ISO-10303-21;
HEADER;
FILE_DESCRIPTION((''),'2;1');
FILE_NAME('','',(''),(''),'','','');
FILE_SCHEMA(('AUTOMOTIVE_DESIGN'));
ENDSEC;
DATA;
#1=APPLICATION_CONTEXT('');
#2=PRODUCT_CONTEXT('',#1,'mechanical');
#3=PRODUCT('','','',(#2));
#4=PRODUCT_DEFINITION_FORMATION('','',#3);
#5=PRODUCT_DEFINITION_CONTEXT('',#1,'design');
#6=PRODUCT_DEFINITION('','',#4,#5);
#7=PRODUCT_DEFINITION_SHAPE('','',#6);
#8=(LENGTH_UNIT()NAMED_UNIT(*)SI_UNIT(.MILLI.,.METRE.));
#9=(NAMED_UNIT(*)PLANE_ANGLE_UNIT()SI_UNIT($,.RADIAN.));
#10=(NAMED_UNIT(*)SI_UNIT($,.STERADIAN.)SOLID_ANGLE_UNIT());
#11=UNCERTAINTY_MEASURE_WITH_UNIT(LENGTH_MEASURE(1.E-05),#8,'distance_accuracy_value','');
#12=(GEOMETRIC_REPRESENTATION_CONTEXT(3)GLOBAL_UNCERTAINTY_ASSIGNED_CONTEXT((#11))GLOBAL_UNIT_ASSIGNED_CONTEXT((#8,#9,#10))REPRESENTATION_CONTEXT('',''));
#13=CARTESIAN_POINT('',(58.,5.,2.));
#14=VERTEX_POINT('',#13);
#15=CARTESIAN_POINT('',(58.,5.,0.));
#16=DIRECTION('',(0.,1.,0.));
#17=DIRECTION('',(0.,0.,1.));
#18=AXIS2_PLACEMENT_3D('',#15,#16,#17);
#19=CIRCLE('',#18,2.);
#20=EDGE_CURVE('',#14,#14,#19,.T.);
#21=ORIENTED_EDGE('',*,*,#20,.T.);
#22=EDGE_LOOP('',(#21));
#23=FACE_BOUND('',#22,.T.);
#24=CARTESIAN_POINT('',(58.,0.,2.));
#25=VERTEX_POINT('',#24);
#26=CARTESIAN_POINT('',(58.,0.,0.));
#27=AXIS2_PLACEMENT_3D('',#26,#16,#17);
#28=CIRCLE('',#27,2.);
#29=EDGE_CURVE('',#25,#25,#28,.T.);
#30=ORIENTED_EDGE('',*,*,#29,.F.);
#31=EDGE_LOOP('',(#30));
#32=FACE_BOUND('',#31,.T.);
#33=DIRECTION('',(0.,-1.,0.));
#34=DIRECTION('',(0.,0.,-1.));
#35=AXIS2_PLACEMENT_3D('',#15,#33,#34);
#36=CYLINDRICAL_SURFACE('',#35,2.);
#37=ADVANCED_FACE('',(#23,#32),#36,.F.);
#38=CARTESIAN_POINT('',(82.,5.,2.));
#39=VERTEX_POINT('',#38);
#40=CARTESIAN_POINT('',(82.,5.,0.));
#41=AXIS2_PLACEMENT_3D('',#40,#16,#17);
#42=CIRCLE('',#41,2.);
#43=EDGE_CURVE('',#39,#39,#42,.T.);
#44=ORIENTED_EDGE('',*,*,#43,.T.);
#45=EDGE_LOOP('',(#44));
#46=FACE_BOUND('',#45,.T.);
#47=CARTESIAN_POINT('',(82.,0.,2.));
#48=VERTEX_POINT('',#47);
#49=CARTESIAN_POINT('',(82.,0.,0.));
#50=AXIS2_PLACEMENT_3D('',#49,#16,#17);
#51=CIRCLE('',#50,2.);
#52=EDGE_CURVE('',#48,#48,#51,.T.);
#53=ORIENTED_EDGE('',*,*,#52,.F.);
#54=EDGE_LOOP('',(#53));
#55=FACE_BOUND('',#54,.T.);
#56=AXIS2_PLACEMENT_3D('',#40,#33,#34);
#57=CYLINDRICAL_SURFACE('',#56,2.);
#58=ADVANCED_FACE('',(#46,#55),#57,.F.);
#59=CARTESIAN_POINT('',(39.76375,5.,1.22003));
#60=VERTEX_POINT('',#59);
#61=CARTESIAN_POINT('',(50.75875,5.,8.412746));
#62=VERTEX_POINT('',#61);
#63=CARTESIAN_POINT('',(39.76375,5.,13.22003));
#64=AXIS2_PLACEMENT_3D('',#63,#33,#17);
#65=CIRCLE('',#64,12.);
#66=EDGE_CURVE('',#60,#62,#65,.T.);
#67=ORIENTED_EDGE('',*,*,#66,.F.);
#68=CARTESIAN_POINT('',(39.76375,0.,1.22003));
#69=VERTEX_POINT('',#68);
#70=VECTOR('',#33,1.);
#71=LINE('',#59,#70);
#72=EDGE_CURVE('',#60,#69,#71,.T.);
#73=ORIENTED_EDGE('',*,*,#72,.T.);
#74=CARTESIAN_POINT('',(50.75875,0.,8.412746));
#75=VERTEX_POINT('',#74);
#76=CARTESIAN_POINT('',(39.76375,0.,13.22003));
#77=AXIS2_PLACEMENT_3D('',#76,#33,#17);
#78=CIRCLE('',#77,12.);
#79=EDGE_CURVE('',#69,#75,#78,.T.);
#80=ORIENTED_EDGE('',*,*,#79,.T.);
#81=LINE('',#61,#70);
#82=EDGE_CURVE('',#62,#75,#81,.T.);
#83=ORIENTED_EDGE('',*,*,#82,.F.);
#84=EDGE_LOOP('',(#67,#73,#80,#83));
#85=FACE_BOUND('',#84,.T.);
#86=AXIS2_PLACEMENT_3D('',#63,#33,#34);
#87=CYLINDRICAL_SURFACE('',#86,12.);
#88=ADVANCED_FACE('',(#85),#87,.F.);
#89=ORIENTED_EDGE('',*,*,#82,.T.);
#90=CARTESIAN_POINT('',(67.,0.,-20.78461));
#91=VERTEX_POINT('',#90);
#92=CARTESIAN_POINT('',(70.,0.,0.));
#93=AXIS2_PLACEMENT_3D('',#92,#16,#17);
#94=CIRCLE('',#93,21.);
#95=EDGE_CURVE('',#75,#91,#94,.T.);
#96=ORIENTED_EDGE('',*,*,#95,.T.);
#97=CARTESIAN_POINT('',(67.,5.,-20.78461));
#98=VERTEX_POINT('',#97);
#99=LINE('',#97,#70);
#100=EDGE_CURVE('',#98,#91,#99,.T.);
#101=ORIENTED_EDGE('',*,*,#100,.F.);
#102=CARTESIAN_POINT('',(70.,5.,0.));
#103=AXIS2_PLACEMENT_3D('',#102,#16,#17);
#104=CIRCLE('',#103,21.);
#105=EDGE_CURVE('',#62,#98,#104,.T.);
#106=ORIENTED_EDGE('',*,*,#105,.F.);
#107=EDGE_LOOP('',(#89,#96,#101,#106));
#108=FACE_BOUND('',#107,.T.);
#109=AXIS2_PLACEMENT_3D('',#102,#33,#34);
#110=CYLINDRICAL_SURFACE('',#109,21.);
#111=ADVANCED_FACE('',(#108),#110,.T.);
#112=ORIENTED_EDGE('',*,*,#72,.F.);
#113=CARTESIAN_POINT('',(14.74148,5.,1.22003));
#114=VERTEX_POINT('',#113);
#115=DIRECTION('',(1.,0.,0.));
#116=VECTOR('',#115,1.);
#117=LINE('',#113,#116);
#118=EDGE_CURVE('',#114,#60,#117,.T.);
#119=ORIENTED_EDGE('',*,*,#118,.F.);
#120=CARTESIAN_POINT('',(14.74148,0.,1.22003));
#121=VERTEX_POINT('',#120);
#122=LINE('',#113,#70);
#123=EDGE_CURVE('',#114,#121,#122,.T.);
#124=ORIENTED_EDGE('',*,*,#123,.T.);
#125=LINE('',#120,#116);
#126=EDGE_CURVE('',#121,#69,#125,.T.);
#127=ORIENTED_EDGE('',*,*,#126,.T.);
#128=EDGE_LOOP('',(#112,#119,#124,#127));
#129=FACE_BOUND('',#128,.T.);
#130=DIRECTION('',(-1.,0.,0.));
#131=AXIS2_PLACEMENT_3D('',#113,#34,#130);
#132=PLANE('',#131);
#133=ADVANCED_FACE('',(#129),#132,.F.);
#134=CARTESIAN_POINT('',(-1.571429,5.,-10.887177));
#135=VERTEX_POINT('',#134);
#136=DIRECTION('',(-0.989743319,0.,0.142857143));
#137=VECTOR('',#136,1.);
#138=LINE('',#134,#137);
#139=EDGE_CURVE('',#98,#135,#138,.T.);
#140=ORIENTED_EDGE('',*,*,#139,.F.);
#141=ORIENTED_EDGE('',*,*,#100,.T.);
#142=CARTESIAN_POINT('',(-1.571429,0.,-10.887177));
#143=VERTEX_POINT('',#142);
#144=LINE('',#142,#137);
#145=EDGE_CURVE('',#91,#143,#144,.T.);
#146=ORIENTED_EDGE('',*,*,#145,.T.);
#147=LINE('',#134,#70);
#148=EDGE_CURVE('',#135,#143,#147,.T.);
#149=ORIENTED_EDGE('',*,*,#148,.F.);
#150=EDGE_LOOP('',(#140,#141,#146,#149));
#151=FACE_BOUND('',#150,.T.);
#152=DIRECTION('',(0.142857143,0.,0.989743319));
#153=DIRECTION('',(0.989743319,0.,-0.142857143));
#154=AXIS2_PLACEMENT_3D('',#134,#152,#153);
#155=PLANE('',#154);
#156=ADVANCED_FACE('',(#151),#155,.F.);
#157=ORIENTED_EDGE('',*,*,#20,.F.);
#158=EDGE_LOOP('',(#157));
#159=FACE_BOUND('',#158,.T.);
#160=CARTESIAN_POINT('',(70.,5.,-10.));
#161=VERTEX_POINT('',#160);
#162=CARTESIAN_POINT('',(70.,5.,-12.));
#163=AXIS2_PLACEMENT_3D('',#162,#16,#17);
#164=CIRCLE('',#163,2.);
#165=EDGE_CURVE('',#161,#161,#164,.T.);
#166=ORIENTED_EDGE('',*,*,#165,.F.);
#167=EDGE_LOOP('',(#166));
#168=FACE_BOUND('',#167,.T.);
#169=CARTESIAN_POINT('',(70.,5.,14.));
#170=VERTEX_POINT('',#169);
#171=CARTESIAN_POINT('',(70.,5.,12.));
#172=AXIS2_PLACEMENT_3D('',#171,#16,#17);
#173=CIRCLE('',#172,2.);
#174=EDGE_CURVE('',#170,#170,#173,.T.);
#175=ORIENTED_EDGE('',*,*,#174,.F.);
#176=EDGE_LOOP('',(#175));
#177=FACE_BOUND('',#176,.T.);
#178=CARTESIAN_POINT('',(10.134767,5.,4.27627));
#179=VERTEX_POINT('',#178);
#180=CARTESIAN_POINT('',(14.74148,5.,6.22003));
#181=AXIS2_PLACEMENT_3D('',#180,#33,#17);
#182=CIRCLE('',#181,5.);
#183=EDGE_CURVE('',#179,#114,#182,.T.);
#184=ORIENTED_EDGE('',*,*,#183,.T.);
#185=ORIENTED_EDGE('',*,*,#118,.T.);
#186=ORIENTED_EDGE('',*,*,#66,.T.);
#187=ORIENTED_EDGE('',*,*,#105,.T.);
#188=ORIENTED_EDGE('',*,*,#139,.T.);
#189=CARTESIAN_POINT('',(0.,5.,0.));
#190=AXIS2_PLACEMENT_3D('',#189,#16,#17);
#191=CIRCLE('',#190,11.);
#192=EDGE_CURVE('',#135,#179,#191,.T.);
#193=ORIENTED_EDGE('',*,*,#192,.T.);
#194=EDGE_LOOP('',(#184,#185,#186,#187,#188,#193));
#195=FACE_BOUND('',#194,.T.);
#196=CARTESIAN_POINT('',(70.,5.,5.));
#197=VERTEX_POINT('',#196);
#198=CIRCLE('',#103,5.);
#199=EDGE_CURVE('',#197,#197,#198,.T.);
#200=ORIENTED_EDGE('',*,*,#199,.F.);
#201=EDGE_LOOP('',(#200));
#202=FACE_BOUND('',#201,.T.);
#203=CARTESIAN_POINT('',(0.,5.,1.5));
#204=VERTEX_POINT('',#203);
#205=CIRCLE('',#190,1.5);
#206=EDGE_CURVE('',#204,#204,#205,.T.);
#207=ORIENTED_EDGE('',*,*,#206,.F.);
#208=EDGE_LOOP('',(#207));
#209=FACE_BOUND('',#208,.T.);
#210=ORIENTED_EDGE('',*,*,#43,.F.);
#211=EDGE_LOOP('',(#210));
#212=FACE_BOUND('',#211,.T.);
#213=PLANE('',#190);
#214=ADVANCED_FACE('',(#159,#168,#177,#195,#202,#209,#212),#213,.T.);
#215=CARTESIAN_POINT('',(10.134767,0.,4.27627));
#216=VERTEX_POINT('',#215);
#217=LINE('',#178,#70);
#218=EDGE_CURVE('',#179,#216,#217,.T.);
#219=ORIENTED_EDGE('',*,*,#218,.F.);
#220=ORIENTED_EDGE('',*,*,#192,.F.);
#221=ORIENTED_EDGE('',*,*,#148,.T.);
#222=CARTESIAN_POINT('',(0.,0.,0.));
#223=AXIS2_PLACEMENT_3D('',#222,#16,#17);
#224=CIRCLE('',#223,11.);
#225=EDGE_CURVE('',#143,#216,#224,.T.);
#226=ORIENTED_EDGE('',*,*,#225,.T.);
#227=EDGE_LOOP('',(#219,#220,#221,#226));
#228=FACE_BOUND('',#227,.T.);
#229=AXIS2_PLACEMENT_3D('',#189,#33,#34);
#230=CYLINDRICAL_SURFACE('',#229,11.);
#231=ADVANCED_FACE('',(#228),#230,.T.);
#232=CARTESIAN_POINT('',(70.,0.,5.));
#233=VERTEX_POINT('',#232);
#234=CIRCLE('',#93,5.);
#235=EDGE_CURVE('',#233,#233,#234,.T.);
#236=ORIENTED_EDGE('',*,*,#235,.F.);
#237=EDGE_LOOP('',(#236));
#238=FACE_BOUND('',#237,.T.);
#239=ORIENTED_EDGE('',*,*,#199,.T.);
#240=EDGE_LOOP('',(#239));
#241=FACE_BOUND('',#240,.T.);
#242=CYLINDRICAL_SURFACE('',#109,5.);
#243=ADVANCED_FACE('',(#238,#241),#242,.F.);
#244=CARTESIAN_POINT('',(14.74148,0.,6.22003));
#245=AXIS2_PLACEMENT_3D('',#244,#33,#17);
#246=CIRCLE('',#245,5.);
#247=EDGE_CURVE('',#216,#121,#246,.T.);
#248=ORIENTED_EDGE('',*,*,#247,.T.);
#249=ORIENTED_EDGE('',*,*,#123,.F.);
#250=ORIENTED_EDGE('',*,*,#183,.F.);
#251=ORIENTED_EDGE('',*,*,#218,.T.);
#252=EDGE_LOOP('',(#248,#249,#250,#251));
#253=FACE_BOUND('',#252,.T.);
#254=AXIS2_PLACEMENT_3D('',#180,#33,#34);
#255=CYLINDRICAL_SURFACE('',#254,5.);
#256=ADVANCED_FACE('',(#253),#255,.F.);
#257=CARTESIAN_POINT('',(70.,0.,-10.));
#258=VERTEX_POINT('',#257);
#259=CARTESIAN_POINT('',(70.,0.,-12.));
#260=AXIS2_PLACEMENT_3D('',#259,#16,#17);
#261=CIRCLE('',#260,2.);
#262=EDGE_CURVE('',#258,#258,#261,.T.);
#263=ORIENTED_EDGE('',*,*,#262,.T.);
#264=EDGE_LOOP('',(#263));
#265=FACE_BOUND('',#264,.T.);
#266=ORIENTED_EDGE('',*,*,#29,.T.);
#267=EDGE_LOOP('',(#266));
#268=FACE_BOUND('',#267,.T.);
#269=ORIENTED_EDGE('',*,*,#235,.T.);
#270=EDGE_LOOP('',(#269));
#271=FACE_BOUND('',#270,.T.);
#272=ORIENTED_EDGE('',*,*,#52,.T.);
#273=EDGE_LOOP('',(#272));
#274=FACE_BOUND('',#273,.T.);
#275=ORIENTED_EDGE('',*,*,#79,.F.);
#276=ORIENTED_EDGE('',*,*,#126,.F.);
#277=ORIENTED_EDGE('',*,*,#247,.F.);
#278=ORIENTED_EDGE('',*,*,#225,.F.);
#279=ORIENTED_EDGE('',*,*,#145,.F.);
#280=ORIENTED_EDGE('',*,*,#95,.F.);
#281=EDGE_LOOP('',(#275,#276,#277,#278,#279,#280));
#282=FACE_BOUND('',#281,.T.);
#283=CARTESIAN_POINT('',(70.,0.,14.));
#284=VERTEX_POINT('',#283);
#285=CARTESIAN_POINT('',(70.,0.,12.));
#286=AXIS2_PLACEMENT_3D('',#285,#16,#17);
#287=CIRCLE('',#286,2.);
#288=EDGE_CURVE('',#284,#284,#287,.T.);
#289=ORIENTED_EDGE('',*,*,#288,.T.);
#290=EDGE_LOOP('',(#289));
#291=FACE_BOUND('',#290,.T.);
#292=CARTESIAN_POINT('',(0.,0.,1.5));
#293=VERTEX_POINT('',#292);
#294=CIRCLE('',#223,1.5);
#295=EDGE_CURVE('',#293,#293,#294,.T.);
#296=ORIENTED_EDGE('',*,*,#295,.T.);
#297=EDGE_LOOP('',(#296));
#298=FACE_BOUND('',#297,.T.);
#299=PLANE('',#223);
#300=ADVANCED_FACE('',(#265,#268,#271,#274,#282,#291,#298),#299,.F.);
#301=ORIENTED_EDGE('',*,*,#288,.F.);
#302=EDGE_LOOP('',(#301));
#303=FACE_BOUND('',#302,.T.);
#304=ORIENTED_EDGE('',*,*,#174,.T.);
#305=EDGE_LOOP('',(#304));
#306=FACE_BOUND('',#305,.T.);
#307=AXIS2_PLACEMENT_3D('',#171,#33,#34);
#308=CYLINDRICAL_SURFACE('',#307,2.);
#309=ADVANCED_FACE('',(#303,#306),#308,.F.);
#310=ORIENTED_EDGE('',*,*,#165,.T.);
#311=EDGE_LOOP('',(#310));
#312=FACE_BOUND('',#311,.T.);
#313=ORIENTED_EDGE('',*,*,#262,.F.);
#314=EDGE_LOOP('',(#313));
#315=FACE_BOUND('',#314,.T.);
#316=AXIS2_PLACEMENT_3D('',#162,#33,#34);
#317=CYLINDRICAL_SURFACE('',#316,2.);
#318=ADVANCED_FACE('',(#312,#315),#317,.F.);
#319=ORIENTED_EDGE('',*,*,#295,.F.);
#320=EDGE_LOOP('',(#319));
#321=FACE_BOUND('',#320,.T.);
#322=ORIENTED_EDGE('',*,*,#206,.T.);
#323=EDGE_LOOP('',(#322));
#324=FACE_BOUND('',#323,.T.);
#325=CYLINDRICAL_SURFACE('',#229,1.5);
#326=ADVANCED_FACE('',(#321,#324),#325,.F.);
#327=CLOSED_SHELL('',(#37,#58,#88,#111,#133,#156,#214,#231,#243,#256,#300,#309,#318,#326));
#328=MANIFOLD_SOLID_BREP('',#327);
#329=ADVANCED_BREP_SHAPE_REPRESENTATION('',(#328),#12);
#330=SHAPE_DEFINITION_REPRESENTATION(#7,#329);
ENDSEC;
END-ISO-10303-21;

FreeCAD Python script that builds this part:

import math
import FreeCAD as App
import Part
import Sketcher

V = App.Vector

doc = App.newDocument("Part")
params = doc.addObject("Spreadsheet::Sheet", "Params")
for row, (alias, value) in enumerate([
    ("sketch1_diameter", "4 mm"),
    ("sketch1_diameter2", "10 mm"),
    ("sketch1_diameter3", "3 mm"),
    ("sketch1_radius", "11 mm"),
    ("sketch1_radius2", "12 mm"),
    ("pad1_length", "5 mm"),
], start=1):
    params.set(f"A{row}", alias)
    params.set(f"B{row}", "=" + value)
    params.setAlias(f"B{row}", alias)

body = doc.addObject("PartDesign::Body", "Body")

sketch1 = body.newObject("Sketcher::SketchObject", "Sketch")
sketch1.AttachmentSupport = (doc.getObject("XZ_Plane"), [""])
sketch1.MapMode = "FlatFace"
sketch1.addGeometry(Part.LineSegment(V(67, -20.8, 0), V(-1.6, -10.9, 0)), False)
sketch1.addGeometry(Part.ArcOfCircle(Part.Circle(V(0, 0, 0), V(0, 0, 1), 11), math.radians(23), math.radians(262)), False)
sketch1.addGeometry(Part.ArcOfCircle(Part.Circle(V(14.7, 6.2, 0), V(0, 0, 1), 5), math.radians(-157), math.radians(-90)), False)
sketch1.addGeometry(Part.LineSegment(V(14.7, 1.2, 0), V(39.8, 1.2, 0)), False)
sketch1.addGeometry(Part.ArcOfCircle(Part.Circle(V(39.8, 13.2, 0), V(0, 0, 1), 12), math.radians(-90), math.radians(-24)), False)
sketch1.addGeometry(Part.ArcOfCircle(Part.Circle(V(70, 0, 0), V(0, 0, 1), 21), math.radians(-98), math.radians(156)), False)
sketch1.addGeometry(Part.Circle(V(70, 12, 0), V(0, 0, 1), 2), False)
sketch1.addGeometry(Part.Circle(V(82, 0, 0), V(0, 0, 1), 2), False)
sketch1.addGeometry(Part.Circle(V(70, 0, 0), V(0, 0, 1), 5), False)
sketch1.addGeometry(Part.Circle(V(58, 0, 0), V(0, 0, 1), 2), False)
sketch1.addGeometry(Part.Circle(V(70, -12, 0), V(0, 0, 1), 2), False)
sketch1.addGeometry(Part.Circle(V(0, 0, 0), V(0, 0, 1), 1.5), False)
sketch1.addConstraint(Sketcher.Constraint("Tangent", 0, 2, 1, 2))
sketch1.addConstraint(Sketcher.Constraint("Tangent", 1, 1, 2, 1))
sketch1.addConstraint(Sketcher.Constraint("Tangent", 2, 2, 3, 1))
sketch1.addConstraint(Sketcher.Constraint("Tangent", 3, 2, 4, 1))
sketch1.addConstraint(Sketcher.Constraint("Tangent", 4, 2, 5, 2))
sketch1.addConstraint(Sketcher.Constraint("Tangent", 5, 1, 0, 1))
sketch1.addConstraint(Sketcher.Constraint("Horizontal", 3))
sketch1.addConstraint(Sketcher.Constraint("Coincident", 1, 3, -1, 1))
sketch1.addConstraint(Sketcher.Constraint("Coincident", 11, 3, -1, 1))
sketch1.addConstraint(Sketcher.Constraint("Coincident", 8, 3, 5, 3))
sketch1.addConstraint(Sketcher.Constraint("Equal", 6, 7))
sketch1.addConstraint(Sketcher.Constraint("Equal", 2, 8))
sketch1.addConstraint(Sketcher.Constraint("Equal", 7, 9))
sketch1.addConstraint(Sketcher.Constraint("Equal", 9, 10))
sketch1.addConstraint(Sketcher.Constraint("Symmetric", 6, 3, 10, 3, -1))
sketch1.addConstraint(Sketcher.Constraint("PointOnObject", 5, 3, -1))
sketch1.addConstraint(Sketcher.Constraint("PointOnObject", 7, 3, -1))
sketch1.addConstraint(Sketcher.Constraint("PointOnObject", 9, 3, -1))
sketch1.addConstraint(Sketcher.Constraint("Vertical", 5, 3, 6, 3))
sketch1.addConstraint(Sketcher.Constraint("Diameter", 6, 4.0))
sketch1.addConstraint(Sketcher.Constraint("Diameter", 8, 10.0))
sketch1.addConstraint(Sketcher.Constraint("Diameter", 11, 3.0))
sketch1.addConstraint(Sketcher.Constraint("Radius", 1, 11.0))
sketch1.addConstraint(Sketcher.Constraint("Radius", 4, 12.0))
sketch1.addConstraint(Sketcher.Constraint("Radius", 5, 21.0))
sketch1.addConstraint(Sketcher.Constraint("DistanceX", -1, 1, 5, 3, 70.0))
sketch1.addConstraint(Sketcher.Constraint("DistanceY", -1, 1, 6, 3, 12.0))
sketch1.addConstraint(Sketcher.Constraint("DistanceX", -1, 1, 7, 3, 82.0))
sketch1.addConstraint(Sketcher.Constraint("DistanceX", -1, 1, 9, 3, 58.0))
sketch1.addConstraint(Sketcher.Constraint("DistanceX", 4, 3, 4, 2, 10.995))
sketch1.setExpression("Constraints[19]", "Params.sketch1_diameter")
sketch1.setExpression("Constraints[20]", "Params.sketch1_diameter2")
sketch1.setExpression("Constraints[21]", "Params.sketch1_diameter3")
sketch1.setExpression("Constraints[22]", "Params.sketch1_radius")
sketch1.setExpression("Constraints[23]", "Params.sketch1_radius2")
pad1 = body.newObject("PartDesign::Pad", "Pad")
pad1.Profile = sketch1
pad1.setExpression("Length", "Params.pad1_length")
pad1.Reversed = True

doc.recompute()
